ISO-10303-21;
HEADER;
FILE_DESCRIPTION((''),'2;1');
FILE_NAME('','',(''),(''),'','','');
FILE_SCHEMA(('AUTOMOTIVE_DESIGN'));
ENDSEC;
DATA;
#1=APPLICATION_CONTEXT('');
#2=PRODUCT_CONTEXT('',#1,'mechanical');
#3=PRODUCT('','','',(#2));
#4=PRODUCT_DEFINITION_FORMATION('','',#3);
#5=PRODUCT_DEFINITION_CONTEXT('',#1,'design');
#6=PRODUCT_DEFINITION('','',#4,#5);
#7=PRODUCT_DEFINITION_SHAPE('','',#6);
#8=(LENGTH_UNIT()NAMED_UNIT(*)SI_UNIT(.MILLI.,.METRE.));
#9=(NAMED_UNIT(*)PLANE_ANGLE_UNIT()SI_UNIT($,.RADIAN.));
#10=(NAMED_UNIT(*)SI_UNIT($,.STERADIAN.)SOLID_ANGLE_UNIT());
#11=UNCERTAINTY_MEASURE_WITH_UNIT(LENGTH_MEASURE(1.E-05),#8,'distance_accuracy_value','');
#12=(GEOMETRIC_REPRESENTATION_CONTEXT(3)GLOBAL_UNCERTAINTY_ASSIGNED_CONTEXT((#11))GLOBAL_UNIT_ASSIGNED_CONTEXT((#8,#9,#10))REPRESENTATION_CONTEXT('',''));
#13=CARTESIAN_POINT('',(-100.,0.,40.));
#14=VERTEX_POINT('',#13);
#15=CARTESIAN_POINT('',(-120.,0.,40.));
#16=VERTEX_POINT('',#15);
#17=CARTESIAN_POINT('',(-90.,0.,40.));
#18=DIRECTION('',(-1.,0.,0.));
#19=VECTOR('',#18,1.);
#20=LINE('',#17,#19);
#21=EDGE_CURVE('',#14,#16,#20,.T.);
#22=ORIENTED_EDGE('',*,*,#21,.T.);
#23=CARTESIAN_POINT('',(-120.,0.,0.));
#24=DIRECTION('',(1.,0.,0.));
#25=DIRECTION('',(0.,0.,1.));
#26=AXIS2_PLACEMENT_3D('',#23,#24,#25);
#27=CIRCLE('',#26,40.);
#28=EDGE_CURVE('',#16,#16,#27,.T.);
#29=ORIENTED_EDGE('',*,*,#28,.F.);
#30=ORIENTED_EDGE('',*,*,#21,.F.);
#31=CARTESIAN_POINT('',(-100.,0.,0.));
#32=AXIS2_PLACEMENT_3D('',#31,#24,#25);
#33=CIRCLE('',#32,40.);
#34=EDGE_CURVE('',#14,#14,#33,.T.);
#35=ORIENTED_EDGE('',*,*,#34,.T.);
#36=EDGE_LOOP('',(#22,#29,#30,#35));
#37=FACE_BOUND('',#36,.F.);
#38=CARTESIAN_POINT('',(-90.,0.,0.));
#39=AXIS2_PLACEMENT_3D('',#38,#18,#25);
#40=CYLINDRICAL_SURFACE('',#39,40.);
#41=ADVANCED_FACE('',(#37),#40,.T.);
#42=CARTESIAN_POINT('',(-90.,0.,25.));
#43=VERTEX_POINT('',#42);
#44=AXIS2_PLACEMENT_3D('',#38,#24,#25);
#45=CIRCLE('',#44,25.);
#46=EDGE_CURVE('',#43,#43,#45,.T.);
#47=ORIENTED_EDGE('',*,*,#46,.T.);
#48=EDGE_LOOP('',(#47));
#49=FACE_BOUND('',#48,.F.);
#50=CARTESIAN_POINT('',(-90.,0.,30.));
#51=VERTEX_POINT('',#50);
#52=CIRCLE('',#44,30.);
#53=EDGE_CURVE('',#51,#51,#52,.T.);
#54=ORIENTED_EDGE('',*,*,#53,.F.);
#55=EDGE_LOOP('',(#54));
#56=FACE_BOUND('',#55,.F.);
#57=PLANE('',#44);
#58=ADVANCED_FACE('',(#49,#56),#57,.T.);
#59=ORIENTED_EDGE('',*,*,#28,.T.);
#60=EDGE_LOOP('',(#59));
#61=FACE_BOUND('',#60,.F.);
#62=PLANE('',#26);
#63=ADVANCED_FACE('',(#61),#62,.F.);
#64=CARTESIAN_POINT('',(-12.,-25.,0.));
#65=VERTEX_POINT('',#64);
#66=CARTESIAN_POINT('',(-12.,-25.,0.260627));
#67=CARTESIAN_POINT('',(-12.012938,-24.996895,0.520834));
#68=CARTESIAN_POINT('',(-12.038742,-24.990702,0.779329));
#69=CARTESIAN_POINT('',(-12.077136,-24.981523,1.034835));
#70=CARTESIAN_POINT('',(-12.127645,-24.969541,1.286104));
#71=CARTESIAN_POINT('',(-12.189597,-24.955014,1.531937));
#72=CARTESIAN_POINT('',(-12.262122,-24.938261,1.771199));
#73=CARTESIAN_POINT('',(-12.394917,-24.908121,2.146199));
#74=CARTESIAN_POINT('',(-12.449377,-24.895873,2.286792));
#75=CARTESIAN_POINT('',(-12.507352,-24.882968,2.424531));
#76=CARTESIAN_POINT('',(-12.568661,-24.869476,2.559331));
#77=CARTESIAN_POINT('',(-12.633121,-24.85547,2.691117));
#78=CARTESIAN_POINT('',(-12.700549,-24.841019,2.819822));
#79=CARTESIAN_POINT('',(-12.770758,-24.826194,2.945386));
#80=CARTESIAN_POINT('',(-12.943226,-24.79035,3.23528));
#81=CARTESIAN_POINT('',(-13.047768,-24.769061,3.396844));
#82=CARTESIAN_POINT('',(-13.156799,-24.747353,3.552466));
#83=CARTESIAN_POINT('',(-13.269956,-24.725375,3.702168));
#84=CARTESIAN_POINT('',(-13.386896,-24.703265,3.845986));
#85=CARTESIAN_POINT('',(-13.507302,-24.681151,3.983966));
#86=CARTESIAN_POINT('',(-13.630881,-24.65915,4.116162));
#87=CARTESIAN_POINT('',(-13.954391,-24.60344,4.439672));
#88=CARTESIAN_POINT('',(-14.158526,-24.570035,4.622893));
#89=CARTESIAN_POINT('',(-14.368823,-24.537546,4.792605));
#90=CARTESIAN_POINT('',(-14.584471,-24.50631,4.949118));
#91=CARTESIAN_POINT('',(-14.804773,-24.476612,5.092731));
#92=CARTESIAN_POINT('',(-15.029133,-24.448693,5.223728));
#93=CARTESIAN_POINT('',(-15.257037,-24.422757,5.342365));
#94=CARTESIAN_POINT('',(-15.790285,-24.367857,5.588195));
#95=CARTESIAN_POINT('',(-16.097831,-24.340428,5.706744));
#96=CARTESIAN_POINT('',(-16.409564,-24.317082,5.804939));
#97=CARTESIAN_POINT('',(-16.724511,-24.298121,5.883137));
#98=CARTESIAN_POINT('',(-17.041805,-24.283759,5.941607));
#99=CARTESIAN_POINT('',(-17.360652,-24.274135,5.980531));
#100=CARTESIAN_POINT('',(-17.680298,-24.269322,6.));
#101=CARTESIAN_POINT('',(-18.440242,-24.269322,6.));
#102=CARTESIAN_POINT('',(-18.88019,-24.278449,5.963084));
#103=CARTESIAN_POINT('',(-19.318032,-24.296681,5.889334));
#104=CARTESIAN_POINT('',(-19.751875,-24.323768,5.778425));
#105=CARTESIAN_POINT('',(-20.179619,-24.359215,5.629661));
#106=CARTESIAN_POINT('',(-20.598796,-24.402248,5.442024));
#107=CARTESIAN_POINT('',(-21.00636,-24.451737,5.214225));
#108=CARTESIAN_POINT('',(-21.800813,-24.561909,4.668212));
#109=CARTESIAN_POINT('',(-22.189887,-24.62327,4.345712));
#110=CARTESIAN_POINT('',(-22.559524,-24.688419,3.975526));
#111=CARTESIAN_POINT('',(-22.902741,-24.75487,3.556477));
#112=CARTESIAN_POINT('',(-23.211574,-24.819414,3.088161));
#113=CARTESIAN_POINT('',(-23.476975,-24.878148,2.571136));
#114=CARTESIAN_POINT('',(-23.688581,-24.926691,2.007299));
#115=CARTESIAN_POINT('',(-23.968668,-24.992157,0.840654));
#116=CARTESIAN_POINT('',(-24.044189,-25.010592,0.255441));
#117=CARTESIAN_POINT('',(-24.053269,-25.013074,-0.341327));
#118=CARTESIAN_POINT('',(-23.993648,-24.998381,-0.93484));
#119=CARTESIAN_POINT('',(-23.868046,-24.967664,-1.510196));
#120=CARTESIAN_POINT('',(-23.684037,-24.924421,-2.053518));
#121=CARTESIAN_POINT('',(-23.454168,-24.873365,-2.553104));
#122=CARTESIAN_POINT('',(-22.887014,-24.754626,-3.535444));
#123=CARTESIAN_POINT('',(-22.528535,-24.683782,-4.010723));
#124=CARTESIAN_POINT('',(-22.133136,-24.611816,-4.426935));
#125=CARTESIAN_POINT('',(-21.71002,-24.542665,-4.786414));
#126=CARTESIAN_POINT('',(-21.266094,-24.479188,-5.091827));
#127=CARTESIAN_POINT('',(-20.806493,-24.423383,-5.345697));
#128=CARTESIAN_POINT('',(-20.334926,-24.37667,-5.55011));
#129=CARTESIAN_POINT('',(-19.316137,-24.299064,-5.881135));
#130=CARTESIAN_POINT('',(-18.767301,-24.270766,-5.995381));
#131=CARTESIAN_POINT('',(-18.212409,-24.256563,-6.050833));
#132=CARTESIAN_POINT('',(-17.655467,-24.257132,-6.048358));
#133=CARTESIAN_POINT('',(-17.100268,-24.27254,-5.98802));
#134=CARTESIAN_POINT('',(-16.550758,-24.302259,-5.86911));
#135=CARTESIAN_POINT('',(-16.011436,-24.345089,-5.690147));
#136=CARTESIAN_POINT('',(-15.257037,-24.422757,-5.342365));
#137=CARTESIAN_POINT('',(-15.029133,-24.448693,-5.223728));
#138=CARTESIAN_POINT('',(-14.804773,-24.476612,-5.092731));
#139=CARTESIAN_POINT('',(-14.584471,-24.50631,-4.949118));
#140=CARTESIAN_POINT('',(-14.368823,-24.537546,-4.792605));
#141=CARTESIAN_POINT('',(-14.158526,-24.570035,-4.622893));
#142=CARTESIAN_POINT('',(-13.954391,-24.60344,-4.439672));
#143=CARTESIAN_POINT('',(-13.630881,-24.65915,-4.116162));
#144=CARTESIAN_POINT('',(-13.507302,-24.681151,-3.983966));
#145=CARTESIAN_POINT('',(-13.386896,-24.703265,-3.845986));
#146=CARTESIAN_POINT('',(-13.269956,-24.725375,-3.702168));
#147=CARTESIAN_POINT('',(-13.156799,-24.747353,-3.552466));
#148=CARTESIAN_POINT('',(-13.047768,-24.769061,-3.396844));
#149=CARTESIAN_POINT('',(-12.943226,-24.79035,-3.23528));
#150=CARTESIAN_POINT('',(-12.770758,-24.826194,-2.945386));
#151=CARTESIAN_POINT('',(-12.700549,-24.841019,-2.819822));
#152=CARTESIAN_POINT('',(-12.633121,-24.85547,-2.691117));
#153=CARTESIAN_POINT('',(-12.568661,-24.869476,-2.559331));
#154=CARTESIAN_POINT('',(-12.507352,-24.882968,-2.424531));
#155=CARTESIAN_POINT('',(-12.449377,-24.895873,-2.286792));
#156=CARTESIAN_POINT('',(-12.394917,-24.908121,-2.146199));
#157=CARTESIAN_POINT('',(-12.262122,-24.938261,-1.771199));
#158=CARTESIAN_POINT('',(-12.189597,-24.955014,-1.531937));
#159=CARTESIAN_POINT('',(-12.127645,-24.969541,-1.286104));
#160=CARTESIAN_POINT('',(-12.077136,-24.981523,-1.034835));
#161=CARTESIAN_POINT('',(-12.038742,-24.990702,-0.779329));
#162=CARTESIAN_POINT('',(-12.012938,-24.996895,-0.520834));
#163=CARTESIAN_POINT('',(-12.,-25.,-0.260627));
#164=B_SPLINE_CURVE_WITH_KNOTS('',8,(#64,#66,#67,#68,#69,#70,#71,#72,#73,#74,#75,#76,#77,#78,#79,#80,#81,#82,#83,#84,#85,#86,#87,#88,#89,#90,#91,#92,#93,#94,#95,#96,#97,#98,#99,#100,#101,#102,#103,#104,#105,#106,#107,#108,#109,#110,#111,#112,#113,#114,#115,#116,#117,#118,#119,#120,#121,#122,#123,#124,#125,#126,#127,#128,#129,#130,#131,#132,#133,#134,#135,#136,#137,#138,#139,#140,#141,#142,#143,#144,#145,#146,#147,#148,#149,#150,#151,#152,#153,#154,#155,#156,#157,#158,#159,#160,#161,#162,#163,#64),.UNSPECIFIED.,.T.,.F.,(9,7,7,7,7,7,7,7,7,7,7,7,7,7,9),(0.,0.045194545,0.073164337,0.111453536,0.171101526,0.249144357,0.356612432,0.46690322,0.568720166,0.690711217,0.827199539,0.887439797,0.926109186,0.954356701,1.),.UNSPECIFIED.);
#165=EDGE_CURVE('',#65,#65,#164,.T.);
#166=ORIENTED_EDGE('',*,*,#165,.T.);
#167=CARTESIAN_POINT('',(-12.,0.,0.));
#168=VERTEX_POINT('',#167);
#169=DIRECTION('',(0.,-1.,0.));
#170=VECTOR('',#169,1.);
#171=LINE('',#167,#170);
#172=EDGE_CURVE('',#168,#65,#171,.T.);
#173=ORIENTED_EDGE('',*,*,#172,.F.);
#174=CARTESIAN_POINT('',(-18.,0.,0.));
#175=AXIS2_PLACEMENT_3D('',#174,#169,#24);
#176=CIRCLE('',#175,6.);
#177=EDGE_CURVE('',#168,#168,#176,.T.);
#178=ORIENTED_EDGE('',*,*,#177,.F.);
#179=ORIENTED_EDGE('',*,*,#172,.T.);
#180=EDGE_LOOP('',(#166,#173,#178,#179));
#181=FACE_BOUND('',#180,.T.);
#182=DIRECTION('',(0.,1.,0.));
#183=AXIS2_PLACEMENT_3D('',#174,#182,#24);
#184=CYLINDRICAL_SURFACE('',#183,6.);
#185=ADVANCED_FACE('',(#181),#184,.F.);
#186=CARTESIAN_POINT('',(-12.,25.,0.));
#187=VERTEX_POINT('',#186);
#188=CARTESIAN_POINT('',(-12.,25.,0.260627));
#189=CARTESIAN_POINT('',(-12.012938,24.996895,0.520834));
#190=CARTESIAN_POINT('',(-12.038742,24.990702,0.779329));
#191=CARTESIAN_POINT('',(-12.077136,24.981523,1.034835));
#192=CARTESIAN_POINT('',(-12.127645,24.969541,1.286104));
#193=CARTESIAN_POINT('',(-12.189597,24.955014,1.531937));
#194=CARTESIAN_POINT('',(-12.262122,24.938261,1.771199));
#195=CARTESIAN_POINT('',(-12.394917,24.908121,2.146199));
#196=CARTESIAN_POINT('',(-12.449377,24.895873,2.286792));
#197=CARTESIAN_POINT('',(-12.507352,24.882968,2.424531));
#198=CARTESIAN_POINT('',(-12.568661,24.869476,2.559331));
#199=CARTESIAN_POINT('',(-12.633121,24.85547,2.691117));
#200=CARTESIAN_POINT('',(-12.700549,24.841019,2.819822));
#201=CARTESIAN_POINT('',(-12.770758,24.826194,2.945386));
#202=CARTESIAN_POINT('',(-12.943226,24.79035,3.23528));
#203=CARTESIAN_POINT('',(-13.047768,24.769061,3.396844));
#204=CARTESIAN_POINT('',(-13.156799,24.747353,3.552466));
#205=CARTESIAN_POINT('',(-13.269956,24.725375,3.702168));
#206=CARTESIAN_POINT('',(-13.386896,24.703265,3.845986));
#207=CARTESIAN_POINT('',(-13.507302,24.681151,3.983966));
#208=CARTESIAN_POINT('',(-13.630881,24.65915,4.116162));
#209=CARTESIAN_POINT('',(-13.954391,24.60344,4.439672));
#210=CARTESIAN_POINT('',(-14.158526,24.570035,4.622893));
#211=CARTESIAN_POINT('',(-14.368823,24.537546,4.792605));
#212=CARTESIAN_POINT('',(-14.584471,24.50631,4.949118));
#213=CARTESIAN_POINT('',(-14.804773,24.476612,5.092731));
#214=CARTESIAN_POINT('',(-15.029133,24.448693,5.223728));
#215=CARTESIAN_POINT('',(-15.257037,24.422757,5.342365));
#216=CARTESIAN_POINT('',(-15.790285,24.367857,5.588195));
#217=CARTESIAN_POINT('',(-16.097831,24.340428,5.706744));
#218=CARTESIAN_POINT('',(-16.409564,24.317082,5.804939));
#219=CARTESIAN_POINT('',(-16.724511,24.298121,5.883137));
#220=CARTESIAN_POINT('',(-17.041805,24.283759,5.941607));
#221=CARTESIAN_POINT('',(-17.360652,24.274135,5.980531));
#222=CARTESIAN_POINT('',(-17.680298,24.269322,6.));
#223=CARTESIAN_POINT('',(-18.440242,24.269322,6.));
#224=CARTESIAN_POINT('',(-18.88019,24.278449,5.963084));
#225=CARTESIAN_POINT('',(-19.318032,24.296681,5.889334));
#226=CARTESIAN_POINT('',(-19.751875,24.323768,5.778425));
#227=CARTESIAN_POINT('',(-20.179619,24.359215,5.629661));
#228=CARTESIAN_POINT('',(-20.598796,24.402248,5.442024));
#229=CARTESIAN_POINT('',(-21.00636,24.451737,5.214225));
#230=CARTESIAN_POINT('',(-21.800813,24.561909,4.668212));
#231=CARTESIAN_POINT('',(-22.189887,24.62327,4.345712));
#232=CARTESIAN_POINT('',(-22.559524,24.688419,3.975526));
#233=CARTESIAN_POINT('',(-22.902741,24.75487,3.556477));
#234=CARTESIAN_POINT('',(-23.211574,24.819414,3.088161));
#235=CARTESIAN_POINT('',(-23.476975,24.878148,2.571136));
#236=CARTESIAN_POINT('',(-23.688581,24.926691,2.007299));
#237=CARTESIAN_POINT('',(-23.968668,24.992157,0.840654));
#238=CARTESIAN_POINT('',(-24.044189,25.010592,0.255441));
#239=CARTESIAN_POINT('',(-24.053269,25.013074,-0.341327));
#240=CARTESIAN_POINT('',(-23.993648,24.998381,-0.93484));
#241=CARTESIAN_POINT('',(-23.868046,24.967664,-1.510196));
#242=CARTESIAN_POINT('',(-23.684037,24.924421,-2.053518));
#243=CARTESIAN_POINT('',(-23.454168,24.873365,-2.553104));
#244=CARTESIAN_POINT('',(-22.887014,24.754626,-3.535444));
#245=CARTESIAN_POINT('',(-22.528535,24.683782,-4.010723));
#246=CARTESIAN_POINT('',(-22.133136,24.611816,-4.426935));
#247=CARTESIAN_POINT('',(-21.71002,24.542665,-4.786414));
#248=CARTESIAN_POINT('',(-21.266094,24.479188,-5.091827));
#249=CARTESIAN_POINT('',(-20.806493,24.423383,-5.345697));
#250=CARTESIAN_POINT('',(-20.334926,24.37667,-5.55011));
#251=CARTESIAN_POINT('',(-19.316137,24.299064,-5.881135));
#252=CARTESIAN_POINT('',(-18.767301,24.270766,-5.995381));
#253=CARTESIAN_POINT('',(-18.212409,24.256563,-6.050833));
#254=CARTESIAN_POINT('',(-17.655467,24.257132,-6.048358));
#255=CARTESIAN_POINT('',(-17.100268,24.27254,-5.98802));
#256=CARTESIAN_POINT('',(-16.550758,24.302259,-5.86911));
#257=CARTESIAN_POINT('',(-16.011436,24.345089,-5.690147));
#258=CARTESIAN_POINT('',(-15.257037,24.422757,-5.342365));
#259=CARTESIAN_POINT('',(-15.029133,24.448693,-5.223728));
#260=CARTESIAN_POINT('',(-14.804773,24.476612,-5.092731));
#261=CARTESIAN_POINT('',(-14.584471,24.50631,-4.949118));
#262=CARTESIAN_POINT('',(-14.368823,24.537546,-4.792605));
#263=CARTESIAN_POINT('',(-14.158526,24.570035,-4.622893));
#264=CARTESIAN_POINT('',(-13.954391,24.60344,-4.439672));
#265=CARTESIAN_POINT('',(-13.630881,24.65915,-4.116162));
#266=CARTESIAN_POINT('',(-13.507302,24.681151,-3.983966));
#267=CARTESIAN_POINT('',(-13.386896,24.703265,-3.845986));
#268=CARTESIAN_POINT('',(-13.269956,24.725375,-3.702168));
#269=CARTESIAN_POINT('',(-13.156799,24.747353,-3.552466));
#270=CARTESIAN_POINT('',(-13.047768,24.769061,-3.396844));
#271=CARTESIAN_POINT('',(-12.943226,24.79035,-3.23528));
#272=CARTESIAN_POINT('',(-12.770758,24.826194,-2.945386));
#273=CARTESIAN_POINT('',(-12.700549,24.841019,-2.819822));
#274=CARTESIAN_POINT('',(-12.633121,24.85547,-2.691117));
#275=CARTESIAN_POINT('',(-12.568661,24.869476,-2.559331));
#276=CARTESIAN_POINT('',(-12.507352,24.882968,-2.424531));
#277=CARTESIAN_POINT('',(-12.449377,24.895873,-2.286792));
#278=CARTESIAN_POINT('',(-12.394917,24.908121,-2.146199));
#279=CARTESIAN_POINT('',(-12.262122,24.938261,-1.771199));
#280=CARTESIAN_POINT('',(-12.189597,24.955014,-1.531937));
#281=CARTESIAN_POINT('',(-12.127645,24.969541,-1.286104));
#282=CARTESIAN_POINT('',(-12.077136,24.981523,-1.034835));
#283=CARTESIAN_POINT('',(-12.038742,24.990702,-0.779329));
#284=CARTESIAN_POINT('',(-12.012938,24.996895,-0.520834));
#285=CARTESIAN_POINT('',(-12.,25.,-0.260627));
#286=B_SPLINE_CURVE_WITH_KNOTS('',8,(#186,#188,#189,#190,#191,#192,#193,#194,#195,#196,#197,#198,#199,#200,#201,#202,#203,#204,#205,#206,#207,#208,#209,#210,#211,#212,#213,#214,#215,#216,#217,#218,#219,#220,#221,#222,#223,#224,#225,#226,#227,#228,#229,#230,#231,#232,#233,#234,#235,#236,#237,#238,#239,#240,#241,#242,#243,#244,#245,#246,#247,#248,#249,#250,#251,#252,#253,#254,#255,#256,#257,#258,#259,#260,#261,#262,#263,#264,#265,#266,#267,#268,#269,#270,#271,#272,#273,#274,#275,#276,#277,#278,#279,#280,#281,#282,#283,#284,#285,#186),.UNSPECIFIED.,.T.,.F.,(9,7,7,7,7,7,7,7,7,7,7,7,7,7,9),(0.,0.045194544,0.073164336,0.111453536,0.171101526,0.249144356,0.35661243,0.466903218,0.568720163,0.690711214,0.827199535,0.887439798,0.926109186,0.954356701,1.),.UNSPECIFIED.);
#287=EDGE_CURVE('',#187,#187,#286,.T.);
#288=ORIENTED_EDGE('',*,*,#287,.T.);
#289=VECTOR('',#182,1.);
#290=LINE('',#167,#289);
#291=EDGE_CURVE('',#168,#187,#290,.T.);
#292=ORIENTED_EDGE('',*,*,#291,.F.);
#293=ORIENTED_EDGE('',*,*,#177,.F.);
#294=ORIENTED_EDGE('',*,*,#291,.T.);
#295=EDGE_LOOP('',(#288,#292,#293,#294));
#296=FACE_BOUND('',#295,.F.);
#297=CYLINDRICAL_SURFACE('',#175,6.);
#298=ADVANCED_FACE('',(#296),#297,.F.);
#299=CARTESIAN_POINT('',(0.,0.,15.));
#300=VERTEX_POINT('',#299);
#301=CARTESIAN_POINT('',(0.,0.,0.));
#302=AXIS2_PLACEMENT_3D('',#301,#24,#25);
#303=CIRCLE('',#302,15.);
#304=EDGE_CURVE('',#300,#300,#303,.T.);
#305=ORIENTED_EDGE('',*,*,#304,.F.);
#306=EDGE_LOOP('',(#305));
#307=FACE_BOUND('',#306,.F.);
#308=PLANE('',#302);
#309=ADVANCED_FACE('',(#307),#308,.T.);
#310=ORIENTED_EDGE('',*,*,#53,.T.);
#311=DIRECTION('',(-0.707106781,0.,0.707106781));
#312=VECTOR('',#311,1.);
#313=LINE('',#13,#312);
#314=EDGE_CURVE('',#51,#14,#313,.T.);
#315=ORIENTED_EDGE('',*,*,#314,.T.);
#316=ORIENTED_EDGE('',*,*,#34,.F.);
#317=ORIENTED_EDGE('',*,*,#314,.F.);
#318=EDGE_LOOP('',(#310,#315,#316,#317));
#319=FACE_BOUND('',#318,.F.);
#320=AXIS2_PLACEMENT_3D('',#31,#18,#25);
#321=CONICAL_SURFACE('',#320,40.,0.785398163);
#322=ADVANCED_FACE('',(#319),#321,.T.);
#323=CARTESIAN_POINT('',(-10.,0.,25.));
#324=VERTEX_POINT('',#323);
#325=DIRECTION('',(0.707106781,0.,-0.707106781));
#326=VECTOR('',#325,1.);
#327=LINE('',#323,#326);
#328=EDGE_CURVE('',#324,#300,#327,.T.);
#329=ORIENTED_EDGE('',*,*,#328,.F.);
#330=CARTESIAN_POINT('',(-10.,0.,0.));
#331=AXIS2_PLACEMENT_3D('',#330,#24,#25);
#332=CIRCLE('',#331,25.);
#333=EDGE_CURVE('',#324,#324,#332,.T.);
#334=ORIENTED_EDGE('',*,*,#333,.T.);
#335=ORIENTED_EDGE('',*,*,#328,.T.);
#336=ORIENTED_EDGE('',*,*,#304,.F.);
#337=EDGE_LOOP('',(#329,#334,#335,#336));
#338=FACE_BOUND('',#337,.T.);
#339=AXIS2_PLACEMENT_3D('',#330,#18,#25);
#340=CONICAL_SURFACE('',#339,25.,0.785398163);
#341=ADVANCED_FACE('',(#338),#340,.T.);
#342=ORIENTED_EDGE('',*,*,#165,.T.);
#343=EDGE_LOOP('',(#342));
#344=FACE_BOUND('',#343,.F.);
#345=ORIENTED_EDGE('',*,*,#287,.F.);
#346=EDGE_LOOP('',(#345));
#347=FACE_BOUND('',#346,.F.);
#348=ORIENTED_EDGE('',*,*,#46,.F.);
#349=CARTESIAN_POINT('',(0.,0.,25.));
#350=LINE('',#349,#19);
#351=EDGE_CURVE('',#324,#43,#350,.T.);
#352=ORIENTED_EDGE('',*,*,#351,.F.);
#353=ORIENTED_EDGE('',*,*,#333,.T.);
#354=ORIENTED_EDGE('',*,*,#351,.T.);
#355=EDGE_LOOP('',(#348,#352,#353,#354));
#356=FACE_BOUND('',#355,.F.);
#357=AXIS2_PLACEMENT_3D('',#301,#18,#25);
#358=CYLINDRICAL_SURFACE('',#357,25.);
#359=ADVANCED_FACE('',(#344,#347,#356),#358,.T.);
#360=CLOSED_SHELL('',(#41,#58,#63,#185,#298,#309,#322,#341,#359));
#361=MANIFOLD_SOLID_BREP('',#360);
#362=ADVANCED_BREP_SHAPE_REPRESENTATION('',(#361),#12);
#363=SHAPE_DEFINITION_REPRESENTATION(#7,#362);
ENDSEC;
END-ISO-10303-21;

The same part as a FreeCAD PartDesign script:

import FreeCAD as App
import Part
import Sketcher
from FreeCAD import Vector


def edges_at(feature, points):
    """Names of the edges that pass closest to the given points."""
    edges = feature.Shape.Edges
    near = lambda p: min(range(len(edges)), key=lambda i: edges[i].distToShape(Part.Vertex(*p))[0])
    return sorted({f"Edge{near(p) + 1}" for p in points})

doc = App.newDocument("Part")
body = doc.addObject("PartDesign::Body", "Body")

# Sketch on XZ plane
sketch1 = body.newObject("Sketcher::SketchObject", "Sketch")
sketch1.AttachmentSupport = (doc.getObject("XZ_Plane"), [""])
sketch1.MapMode = "FlatFace"
sketch1.addGeometry([
    Part.LineSegment(Vector(-120, 40, 0), Vector(-120, 0, 0)),  # 0
    Part.LineSegment(Vector(-120, 0, 0), Vector(0, 0, 0)),  # 1
    Part.LineSegment(Vector(0, 0, 0), Vector(0, 25, 0)),  # 2
    Part.LineSegment(Vector(0, 25, 0), Vector(-90, 25, 0)),  # 3
    Part.LineSegment(Vector(-90, 25, 0), Vector(-90, 40, 0)),  # 4
    Part.LineSegment(Vector(-90, 40, 0), Vector(-120, 40, 0)),  # 5
], False)
sketch1.addConstraint([
    Sketcher.Constraint("Coincident", 0, 2, 1, 1),
    Sketcher.Constraint("Coincident", 1, 2, 2, 1),
    Sketcher.Constraint("Coincident", 2, 2, 3, 1),
    Sketcher.Constraint("Coincident", 3, 2, 4, 1),
    Sketcher.Constraint("Coincident", 4, 2, 5, 1),
    Sketcher.Constraint("Coincident", 5, 2, 0, 1),
    Sketcher.Constraint("Vertical", 0),
    Sketcher.Constraint("Horizontal", 1),
    Sketcher.Constraint("Vertical", 2),
    Sketcher.Constraint("Horizontal", 3),
    Sketcher.Constraint("Vertical", 4),
    Sketcher.Constraint("Horizontal", 5),
    Sketcher.Constraint("Coincident", 1, 2, -1, 1),
    Sketcher.Constraint("DistanceX", 1, 1, 1, 2, 120.0),
    Sketcher.Constraint("DistanceX", 3, 2, 3, 1, 90.0),
    Sketcher.Constraint("DistanceY", 0, 2, 0, 1, 40.0),
    Sketcher.Constraint("DistanceY", 2, 1, 2, 2, 25.0),
])
revolution = body.newObject("PartDesign::Revolution", "Revolution")
revolution.Profile = sketch1
revolution.ReferenceAxis = (sketch1, ["H_Axis"])
revolution.Angle = 360
doc.recompute()

chamfer = body.newObject("PartDesign::Chamfer", "Chamfer")
chamfer.Base = (revolution, edges_at(revolution, [(-90, 0, -40)]))
chamfer.Size = 10
doc.recompute()

chamfer2 = body.newObject("PartDesign::Chamfer", "Chamfer001")
chamfer2.Base = (chamfer, edges_at(chamfer, [(0, 0, -25)]))
chamfer2.Size = 10

# Sketch on XZ plane
sketch2 = body.newObject("Sketcher::SketchObject", "Sketch001")
sketch2.AttachmentSupport = (doc.getObject("XZ_Plane"), [""])
sketch2.MapMode = "FlatFace"
sketch2.addGeometry(Part.Circle(Vector(-18, 0, 0), Vector(0, 0, 1), 6), False)
sketch2.addConstraint([
    Sketcher.Constraint("PointOnObject", 0, 3, -1),
    Sketcher.Constraint("Diameter", 0, 12.0),
    Sketcher.Constraint("DistanceX", 0, 3, -1, 1, 18.0),
])
pocket1 = body.newObject("PartDesign::Pocket", "Pocket")
pocket1.Profile = sketch2
pocket1.Type = "ThroughAll"
pocket1.Midplane = True

doc.recompute()
